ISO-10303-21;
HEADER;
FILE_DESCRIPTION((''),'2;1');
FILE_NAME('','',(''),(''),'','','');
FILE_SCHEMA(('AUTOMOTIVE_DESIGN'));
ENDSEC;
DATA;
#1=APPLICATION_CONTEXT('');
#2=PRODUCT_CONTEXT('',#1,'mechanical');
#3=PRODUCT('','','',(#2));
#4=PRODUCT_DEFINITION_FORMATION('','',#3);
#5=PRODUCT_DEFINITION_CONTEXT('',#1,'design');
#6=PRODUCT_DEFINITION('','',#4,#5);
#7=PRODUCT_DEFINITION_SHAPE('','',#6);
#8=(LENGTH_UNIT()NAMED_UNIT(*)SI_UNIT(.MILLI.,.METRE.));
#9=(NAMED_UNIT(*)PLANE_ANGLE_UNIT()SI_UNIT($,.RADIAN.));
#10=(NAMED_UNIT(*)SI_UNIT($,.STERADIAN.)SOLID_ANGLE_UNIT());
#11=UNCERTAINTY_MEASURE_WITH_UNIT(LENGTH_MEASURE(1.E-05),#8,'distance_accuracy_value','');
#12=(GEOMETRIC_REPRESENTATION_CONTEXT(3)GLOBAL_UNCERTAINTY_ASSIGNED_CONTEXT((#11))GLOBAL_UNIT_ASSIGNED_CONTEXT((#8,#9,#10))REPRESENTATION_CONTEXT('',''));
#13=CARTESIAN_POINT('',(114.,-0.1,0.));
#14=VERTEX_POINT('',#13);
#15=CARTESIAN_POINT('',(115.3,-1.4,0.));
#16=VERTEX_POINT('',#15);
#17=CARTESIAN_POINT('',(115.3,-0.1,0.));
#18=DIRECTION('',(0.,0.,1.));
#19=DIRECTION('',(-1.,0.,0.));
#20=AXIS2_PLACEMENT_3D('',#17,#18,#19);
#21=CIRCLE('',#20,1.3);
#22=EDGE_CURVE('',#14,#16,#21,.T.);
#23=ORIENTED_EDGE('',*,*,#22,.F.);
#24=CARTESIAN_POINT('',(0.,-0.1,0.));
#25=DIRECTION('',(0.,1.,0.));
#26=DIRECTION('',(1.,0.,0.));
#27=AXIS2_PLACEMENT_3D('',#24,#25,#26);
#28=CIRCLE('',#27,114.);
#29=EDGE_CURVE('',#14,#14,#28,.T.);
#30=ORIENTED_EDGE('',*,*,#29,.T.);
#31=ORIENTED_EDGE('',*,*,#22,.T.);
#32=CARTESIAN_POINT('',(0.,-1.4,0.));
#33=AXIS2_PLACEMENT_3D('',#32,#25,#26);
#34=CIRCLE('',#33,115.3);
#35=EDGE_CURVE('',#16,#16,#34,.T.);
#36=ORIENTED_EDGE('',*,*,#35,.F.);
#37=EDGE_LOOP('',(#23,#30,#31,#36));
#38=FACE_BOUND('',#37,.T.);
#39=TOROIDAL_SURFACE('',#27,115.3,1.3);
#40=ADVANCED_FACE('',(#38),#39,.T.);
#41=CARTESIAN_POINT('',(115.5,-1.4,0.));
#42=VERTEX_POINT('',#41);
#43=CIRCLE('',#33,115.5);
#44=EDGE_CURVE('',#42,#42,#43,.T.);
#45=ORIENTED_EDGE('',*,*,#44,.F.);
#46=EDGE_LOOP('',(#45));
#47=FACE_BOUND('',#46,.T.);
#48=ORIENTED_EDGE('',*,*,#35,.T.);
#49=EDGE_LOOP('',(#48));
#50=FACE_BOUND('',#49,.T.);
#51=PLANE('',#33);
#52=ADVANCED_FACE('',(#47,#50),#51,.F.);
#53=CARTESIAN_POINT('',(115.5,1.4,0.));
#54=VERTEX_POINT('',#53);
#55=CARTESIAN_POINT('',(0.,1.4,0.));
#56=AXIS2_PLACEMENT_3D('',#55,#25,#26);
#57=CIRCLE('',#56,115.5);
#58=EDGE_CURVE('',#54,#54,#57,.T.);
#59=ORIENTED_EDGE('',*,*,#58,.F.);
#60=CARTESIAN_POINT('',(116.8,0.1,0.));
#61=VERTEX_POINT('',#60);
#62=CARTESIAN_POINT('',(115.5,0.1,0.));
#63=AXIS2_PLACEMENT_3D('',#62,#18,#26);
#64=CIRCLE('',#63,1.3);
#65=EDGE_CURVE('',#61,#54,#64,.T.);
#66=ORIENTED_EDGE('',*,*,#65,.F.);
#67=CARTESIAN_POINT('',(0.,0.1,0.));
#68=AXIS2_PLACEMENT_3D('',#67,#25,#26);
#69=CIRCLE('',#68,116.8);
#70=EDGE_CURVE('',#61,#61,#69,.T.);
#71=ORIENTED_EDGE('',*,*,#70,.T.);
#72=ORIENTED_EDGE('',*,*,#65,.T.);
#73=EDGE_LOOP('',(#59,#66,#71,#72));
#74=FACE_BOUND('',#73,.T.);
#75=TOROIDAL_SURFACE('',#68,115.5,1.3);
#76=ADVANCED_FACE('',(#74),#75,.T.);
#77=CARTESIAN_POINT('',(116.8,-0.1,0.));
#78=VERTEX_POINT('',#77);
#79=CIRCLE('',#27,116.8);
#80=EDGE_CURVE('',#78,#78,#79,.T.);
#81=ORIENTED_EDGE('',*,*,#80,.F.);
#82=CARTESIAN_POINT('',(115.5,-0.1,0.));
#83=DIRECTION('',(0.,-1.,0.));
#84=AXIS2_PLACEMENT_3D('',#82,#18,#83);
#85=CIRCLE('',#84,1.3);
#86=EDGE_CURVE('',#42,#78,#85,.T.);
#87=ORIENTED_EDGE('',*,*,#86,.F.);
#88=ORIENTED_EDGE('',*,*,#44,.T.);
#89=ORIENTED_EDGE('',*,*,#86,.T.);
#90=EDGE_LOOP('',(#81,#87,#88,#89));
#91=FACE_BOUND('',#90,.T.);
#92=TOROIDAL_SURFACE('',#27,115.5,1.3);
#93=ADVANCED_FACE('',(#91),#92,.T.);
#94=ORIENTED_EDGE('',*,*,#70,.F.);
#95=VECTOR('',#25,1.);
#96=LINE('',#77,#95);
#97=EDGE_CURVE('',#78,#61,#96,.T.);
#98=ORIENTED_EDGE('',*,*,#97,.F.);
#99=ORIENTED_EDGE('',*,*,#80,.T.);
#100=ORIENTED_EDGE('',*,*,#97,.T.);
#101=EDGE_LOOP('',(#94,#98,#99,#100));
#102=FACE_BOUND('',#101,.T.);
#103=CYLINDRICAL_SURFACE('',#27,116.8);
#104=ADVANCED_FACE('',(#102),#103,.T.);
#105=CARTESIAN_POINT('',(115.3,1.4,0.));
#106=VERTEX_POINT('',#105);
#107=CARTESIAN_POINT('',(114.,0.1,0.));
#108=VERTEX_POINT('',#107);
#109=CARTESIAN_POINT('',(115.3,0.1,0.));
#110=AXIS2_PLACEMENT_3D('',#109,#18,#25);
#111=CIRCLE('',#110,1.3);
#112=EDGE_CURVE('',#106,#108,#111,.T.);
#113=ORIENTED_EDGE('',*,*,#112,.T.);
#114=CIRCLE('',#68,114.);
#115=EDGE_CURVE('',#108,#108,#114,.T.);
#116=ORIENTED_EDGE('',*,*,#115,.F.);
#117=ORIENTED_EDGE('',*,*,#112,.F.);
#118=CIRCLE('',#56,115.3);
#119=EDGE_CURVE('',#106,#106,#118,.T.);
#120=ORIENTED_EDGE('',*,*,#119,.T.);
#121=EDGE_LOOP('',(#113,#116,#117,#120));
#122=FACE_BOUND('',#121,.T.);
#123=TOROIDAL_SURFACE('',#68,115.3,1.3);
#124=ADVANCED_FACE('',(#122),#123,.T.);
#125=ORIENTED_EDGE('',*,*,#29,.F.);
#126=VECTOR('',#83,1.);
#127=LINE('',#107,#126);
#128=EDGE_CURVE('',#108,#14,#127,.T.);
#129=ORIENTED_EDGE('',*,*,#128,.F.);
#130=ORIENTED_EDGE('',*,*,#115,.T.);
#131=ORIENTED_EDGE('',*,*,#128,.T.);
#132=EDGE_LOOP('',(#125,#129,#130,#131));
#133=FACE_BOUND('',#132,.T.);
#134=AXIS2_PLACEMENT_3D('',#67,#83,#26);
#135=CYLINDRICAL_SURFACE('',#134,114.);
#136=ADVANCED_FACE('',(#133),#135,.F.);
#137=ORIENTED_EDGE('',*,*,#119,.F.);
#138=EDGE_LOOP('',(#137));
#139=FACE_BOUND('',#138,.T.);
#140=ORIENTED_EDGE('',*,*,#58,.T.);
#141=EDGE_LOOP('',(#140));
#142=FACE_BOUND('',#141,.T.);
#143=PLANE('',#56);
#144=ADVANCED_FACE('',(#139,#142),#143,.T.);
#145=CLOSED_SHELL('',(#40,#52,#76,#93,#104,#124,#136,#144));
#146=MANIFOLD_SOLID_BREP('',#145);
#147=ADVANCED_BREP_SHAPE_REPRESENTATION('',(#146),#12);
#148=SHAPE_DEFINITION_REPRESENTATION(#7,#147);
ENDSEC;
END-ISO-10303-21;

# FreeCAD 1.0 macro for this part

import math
import FreeCAD as App
import Part
import Sketcher
from FreeCAD import Vector

doc = App.newDocument("Part")
body = doc.addObject("PartDesign::Body", "Body")

sketch1 = doc.addObject("Sketcher::SketchObject", "Sketch")
body.addObject(sketch1)
sketch1.AttachmentSupport = (doc.XY_Plane, [""])
sketch1.MapMode = "FlatFace"
sketch1.addGeometry([
    Part.ArcOfCircle(Part.Circle(Vector(115.3, -0.1, 0), Vector(0, 0, 1), 1.3), math.radians(180), math.radians(270)),
    Part.LineSegment(Vector(115.3, -1.4, 0), Vector(115.5, -1.4, 0)),
    Part.ArcOfCircle(Part.Circle(Vector(115.5, -0.1, 0), Vector(0, 0, 1), 1.3), math.radians(-90), math.radians(0)),
    Part.LineSegment(Vector(116.8, -0.1, 0), Vector(116.8, 0.1, 0)),
    Part.ArcOfCircle(Part.Circle(Vector(115.5, 0.1, 0), Vector(0, 0, 1), 1.3), math.radians(0), math.radians(90)),
    Part.LineSegment(Vector(115.5, 1.4, 0), Vector(115.3, 1.4, 0)),
    Part.ArcOfCircle(Part.Circle(Vector(115.3, 0.1, 0), Vector(0, 0, 1), 1.3), math.radians(90), math.radians(180)),
    Part.LineSegment(Vector(114, 0.1, 0), Vector(114, -0.1, 0)),
], False)
sketch1.addConstraint([
    Sketcher.Constraint("Tangent", 0, 2, 1, 1),
    Sketcher.Constraint("Tangent", 1, 2, 2, 1),
    Sketcher.Constraint("Tangent", 2, 2, 3, 1),
    Sketcher.Constraint("Tangent", 3, 2, 4, 1),
    Sketcher.Constraint("Tangent", 4, 2, 5, 1),
    Sketcher.Constraint("Tangent", 5, 2, 6, 1),
    Sketcher.Constraint("Tangent", 6, 2, 7, 1),
    Sketcher.Constraint("Tangent", 7, 2, 0, 1),
    Sketcher.Constraint("Horizontal", 1),
    Sketcher.Constraint("Vertical", 3),
    Sketcher.Constraint("Horizontal", 5),
    Sketcher.Constraint("Vertical", 7),
    Sketcher.Constraint("Equal", 0, 2),
    Sketcher.Constraint("Equal", 2, 4),
    Sketcher.Constraint("Equal", 4, 6),
    Sketcher.Constraint("Equal", 5, 3),
    Sketcher.Constraint("Radius", 0, 1.3),
    Sketcher.Constraint("DistanceX", -1, 1, 6, 2, 114.0),
    Sketcher.Constraint("DistanceX", 1, 1, 1, 2, 0.2),
    Sketcher.Constraint("DistanceY", 0, 3, -1, 1, 0.1),
])
revolution = doc.addObject("PartDesign::Revolution", "Revolution")
body.addObject(revolution)
revolution.Profile = sketch1
revolution.ReferenceAxis = (sketch1, ["V_Axis"])
revolution.Angle = 360

doc.recompute()
